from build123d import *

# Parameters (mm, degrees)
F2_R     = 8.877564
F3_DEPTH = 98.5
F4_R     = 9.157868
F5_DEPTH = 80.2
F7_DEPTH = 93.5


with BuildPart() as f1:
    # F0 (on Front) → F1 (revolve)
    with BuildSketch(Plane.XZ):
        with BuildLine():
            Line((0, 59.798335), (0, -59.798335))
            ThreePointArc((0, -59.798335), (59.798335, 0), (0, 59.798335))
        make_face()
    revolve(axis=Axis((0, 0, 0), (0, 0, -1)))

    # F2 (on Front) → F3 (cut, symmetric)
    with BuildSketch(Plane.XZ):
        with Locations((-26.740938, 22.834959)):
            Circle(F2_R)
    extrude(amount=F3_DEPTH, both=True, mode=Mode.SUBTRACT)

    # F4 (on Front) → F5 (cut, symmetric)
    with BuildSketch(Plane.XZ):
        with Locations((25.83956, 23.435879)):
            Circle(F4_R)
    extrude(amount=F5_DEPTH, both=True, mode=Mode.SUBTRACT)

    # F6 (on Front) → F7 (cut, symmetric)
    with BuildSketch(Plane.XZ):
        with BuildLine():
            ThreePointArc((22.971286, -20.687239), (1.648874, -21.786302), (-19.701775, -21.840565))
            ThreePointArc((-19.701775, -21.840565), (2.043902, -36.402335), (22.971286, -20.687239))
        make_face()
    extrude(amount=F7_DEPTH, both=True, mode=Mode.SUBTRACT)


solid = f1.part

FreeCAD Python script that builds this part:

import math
import FreeCAD as App
import Part
import Sketcher

V = App.Vector

doc = App.newDocument("Part")
params = doc.addObject("Spreadsheet::Sheet", "Params")
for row, (alias, value) in enumerate([
    ("revolution_angle", "360 deg"),
    ("pocket1_length", "197 mm"),
    ("pocket2_length", "160.4 mm"),
    ("pocket3_length", "187 mm"),
], start=1):
    params.set(f"A{row}", alias)
    params.set(f"B{row}", "=" + value)
    params.setAlias(f"B{row}", alias)

body = doc.addObject("PartDesign::Body", "Body")

# Sketch on XZ plane
sketch1 = body.newObject("Sketcher::SketchObject", "Sketch")
sketch1.AttachmentSupport = (doc.getObject("XZ_Plane"), [""])
sketch1.MapMode = "FlatFace"
sketch1.addGeometry(Part.LineSegment(V(0, 59.798335, 0), V(0, -59.798335, 0)), False)
sketch1.addGeometry(Part.ArcOfCircle(Part.Circle(V(0, 0, 0), V(0, 0, 1), 59.798335), math.radians(-90), math.radians(90)), False)
sketch1.addConstraint(Sketcher.Constraint("Coincident", 0, 1, 1, 2))
sketch1.addConstraint(Sketcher.Constraint("Coincident", 1, 1, 0, 2))
sketch1.addConstraint(Sketcher.Constraint("Vertical", 0))
sketch1.addConstraint(Sketcher.Constraint("Coincident", 1, 3, -1, 1))
sketch1.addConstraint(Sketcher.Constraint("PointOnObject", 0, 1, -2))
sketch1.addConstraint(Sketcher.Constraint("Radius", 1, 59.798335))
revolution = body.newObject("PartDesign::Revolution", "Revolution")
revolution.Profile = sketch1
revolution.ReferenceAxis = (sketch1, ["V_Axis"])
revolution.setExpression("Angle", "Params.revolution_angle")

# Sketch on XZ plane
sketch2 = body.newObject("Sketcher::SketchObject", "Sketch001")
sketch2.AttachmentSupport = (doc.getObject("XZ_Plane"), [""])
sketch2.MapMode = "FlatFace"
sketch2.addGeometry(Part.Circle(V(-26.740938, 22.834959, 0), V(0, 0, 1), 8.877564), False)
sketch2.addConstraint(Sketcher.Constraint("Diameter", 0, 17.755128))
sketch2.addConstraint(Sketcher.Constraint("DistanceX", 0, 3, -1, 1, 26.740938))
sketch2.addConstraint(Sketcher.Constraint("DistanceY", -1, 1, 0, 3, 22.834959))
pocket1 = body.newObject("PartDesign::Pocket", "Pocket")
pocket1.Profile = sketch2
pocket1.setExpression("Length", "Params.pocket1_length")
pocket1.Midplane = True

# Sketch on XZ plane
sketch3 = body.newObject("Sketcher::SketchObject", "Sketch002")
sketch3.AttachmentSupport = (doc.getObject("XZ_Plane"), [""])
sketch3.MapMode = "FlatFace"
sketch3.addGeometry(Part.Circle(V(25.83956, 23.435879, 0), V(0, 0, 1), 9.157868), False)
sketch3.addConstraint(Sketcher.Constraint("Diameter", 0, 18.315736))
sketch3.addConstraint(Sketcher.Constraint("DistanceX", -1, 1, 0, 3, 25.83956))
sketch3.addConstraint(Sketcher.Constraint("DistanceY", -1, 1, 0, 3, 23.435879))
pocket2 = body.newObject("PartDesign::Pocket", "Pocket001")
pocket2.Profile = sketch3
pocket2.setExpression("Length", "Params.pocket2_length")
pocket2.Midplane = True

# Sketch on XZ plane
sketch4 = body.newObject("Sketcher::SketchObject", "Sketch003")
sketch4.AttachmentSupport = (doc.getObject("XZ_Plane"), [""])
sketch4.MapMode = "FlatFace"
sketch4.addGeometry(Part.ArcOfCircle(Part.Circle(V(-10.13459, 414.201873, 0), V(0, 0, 1), 436.147382), math.radians(-91.256922), math.radians(-85.646762)), False)
sketch4.addGeometry(Part.ArcOfCircle(Part.Circle(V(1.432946, -13.796967, 0), V(0, 0, 1), 22.613622), math.radians(-159.163832), math.radians(-17.739853)), False)
sketch4.addConstraint(Sketcher.Constraint("Coincident", 0, 1, 1, 1))
sketch4.addConstraint(Sketcher.Constraint("Coincident", 1, 2, 0, 2))
sketch4.addConstraint(Sketcher.Constraint("Radius", 0, 436.147382))
sketch4.addConstraint(Sketcher.Constraint("Radius", 1, 22.613622))
sketch4.addConstraint(Sketcher.Constraint("DistanceX", 0, 3, -1, 1, 10.13459))
sketch4.addConstraint(Sketcher.Constraint("DistanceY", 1, 2, -1, 1, 20.687239))
sketch4.addConstraint(Sketcher.Constraint("DistanceY", 1, 3, 0, 3, 427.99884))
sketch4.addConstraint(Sketcher.Constraint("DistanceY", 0, 1, 0, 3, 436.042438))
pocket3 = body.newObject("PartDesign::Pocket", "Pocket002")
pocket3.Profile = sketch4
pocket3.setExpression("Length", "Params.pocket3_length")
pocket3.Midplane = True

doc.recompute()
